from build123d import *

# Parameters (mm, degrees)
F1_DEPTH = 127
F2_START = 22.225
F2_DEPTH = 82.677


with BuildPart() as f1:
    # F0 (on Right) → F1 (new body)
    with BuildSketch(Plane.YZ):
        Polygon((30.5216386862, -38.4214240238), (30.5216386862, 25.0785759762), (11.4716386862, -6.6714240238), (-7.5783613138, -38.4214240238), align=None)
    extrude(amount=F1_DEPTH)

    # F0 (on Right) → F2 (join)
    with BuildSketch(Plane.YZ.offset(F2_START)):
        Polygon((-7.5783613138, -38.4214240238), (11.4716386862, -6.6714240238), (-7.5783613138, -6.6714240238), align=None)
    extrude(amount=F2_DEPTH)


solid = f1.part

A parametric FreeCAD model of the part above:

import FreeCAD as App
import Part
import Sketcher

V = App.Vector
Q = App.Units.Quantity


def add_polygon(sketch, points):
    """Adds a closed chain of lines whose ends are joined by coincident constraints."""
    first, n = sketch.GeometryCount, len(points)
    for a, b in zip(points, points[1:] + points[:1]):
        sketch.addGeometry(Part.LineSegment(App.Vector(*a, 0), App.Vector(*b, 0)), False)
    for i in range(n):
        sketch.addConstraint(Sketcher.Constraint("Coincident", first + i, 2, first + (i + 1) % n, 1))

doc = App.newDocument("Part")
body = doc.addObject("PartDesign::Body", "Body")

# Sketch on YZ plane
sketch1 = body.newObject("Sketcher::SketchObject", "Sketch")
sketch1.AttachmentSupport = (doc.getObject("YZ_Plane"), [""])
sketch1.MapMode = "FlatFace"
add_polygon(sketch1, [(31, -38), (31, 25), (-8, -38)])  # lines 0-2
sketch1.addConstraint(Sketcher.Constraint("Vertical", 0))
sketch1.addConstraint(Sketcher.Constraint("Horizontal", 2))
sketch1.addConstraint(Sketcher.Constraint("DistanceX", 2, 1, 2, 2, Q("1.5 in")))
sketch1.addConstraint(Sketcher.Constraint("DistanceY", 0, 1, 0, 2, Q("2.5 in")))
sketch1.addConstraint(Sketcher.Constraint("DistanceX", -1, 1, 0, 2, Q("30.521639 mm")))
sketch1.addConstraint(Sketcher.Constraint("DistanceY", -1, 1, 0, 2, Q("25.078576 mm")))
pad1 = body.newObject("PartDesign::Pad", "Pad")
pad1.Profile = sketch1
pad1.Length = Q("5 in")

# Sketch on YZ plane
sketch2 = body.newObject("Sketcher::SketchObject", "Sketch001")
sketch2.AttachmentSupport = (doc.getObject("YZ_Plane"), [""])
sketch2.MapMode = "FlatFace"
sketch2.AttachmentOffset = App.Placement(V(0, 0, 0.875 * 25.4), App.Rotation())
add_polygon(sketch2, [(-8, -38), (11, -7), (-8, -7)])  # lines 0-2
sketch2.addConstraint(Sketcher.Constraint("Horizontal", 1))
sketch2.addConstraint(Sketcher.Constraint("Vertical", 2))
sketch2.addConstraint(Sketcher.Constraint("DistanceX", 1, 2, 1, 1, Q("0.75 in")))
sketch2.addConstraint(Sketcher.Constraint("DistanceY", 2, 2, 2, 1, Q("1.25 in")))
sketch2.addConstraint(Sketcher.Constraint("DistanceX", -1, 1, 0, 2, Q("11.471639 mm")))
sketch2.addConstraint(Sketcher.Constraint("DistanceY", 0, 2, -1, 1, Q("6.671424 mm")))
pad2 = body.newObject("PartDesign::Pad", "Pad001")
pad2.Profile = sketch2
pad2.Length = Q("3.255 in")

doc.recompute()
